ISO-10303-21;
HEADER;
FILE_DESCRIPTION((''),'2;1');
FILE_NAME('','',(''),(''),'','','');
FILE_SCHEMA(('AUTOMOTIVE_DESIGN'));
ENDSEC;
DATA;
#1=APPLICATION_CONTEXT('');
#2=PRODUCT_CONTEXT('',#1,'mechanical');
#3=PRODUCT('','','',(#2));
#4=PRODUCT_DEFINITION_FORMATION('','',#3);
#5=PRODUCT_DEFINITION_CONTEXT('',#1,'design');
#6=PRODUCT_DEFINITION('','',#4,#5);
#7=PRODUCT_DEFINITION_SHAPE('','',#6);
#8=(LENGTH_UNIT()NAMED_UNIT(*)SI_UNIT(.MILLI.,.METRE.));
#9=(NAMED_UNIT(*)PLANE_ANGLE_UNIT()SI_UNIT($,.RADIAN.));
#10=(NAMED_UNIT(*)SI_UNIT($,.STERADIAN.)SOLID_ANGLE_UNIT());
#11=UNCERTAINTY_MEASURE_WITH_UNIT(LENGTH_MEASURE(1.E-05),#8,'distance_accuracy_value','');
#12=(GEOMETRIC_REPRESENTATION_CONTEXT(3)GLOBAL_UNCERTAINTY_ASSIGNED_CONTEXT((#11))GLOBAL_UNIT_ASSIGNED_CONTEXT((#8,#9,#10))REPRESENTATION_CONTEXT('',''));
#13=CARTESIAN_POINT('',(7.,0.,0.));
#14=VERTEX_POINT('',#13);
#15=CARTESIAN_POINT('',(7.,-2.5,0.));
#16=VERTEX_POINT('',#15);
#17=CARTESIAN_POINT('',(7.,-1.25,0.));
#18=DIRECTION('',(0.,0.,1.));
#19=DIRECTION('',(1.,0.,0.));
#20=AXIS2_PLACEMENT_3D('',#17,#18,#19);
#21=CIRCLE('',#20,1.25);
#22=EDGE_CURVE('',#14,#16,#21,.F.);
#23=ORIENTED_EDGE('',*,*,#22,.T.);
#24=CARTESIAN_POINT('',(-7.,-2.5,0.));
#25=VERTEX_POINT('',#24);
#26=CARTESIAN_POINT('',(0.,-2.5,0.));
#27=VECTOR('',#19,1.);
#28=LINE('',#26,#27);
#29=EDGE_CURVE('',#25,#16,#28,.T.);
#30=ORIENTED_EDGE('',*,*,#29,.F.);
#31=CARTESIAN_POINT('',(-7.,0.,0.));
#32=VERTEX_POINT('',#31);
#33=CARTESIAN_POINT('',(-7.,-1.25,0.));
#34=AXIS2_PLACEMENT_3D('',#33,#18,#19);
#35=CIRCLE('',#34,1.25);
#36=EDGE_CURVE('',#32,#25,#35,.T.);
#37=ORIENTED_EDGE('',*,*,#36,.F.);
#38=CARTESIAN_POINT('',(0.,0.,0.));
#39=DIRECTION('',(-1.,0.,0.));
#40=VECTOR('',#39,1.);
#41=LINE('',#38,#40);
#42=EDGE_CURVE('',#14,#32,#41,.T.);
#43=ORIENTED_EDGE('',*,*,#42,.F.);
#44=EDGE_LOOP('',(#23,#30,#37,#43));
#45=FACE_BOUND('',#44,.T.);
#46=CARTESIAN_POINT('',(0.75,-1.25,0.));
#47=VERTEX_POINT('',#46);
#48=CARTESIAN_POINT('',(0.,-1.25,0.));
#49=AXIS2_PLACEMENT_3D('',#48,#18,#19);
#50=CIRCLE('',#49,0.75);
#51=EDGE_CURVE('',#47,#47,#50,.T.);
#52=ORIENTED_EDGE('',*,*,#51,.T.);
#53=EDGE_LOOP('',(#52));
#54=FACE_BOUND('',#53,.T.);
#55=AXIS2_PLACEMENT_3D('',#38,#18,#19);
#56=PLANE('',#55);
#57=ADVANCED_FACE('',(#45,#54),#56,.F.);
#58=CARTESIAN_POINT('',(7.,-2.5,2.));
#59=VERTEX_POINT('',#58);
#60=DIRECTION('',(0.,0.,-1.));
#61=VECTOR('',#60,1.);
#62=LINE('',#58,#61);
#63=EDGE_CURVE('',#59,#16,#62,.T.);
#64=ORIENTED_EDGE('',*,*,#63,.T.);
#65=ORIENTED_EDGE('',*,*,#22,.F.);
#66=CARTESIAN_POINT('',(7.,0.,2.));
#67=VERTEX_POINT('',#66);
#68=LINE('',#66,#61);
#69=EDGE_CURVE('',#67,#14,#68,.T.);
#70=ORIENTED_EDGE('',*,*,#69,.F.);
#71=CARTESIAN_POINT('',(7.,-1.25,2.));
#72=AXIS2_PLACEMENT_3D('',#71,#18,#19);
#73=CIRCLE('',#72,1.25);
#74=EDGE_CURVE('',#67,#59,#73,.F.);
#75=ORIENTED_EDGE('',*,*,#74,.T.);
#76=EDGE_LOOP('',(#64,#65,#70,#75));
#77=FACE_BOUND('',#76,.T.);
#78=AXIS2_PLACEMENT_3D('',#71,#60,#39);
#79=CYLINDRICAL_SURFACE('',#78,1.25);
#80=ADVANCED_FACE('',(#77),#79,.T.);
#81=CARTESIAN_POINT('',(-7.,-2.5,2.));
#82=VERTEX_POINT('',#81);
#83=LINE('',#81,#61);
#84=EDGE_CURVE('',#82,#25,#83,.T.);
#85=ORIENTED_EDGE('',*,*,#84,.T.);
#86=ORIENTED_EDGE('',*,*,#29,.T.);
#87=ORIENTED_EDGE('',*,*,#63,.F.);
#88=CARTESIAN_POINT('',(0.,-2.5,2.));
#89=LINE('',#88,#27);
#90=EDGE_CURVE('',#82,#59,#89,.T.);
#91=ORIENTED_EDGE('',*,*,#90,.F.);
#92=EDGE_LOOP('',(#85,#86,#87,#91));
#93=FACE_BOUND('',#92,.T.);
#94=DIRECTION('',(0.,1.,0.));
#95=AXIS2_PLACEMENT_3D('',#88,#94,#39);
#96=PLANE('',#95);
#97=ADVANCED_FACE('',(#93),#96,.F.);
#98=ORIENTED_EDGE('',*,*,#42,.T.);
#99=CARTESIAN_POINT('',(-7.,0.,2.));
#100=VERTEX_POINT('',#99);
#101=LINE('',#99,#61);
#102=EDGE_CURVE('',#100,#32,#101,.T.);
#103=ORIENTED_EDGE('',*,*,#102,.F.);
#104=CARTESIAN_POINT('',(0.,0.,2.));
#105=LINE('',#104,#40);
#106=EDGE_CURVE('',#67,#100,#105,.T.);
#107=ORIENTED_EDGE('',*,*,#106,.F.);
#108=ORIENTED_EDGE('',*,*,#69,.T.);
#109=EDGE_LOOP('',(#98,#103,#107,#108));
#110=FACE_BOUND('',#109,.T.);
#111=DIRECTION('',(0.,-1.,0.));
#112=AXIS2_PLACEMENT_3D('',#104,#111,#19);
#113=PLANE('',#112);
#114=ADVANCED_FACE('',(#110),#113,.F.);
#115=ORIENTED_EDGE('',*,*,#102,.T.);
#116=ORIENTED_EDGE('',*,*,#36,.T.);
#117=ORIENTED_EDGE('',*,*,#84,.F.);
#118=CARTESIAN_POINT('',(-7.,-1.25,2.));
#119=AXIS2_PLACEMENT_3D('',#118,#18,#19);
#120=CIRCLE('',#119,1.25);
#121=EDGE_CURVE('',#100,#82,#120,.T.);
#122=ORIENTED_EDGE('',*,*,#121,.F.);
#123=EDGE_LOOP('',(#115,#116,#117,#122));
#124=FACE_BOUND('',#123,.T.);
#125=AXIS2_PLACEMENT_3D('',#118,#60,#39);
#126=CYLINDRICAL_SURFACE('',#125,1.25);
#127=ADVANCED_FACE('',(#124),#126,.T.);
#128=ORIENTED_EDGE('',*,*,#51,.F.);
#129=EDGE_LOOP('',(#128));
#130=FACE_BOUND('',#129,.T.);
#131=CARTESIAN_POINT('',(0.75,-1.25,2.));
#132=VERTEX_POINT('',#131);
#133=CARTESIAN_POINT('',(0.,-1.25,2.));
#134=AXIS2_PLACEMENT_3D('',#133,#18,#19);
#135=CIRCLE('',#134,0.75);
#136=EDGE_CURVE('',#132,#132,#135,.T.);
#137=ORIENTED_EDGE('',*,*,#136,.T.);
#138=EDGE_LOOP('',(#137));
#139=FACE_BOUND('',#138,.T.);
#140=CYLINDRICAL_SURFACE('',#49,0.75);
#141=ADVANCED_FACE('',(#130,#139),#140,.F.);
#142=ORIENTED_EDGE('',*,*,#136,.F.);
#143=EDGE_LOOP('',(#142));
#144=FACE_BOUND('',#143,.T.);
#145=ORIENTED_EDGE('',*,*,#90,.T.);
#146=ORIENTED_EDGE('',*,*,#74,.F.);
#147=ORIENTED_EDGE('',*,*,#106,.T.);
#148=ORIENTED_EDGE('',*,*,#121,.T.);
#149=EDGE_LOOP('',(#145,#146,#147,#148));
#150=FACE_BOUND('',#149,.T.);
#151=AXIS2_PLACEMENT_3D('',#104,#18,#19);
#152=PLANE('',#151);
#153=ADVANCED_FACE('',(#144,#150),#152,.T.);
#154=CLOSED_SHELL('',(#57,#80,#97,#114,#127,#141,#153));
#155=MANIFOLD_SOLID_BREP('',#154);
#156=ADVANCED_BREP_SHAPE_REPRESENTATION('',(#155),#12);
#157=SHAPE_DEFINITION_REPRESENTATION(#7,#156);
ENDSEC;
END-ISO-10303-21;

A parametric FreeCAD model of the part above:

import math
import FreeCAD as App
import Part
import Sketcher

doc = App.newDocument("Part")
body = doc.addObject("PartDesign::Body", "Body")

sketch1 = doc.addObject("Sketcher::SketchObject", "Sketch")
body.addObject(sketch1)
sketch1.AttachmentSupport = (doc.XY_Plane, [""])
sketch1.MapMode = "FlatFace"
sketch1.addGeometry([
    Part.ArcOfCircle(Part.Circle(App.Vector(-7, -1.2, 0), App.Vector(0, 0, 1), 1.2), math.radians(90), math.radians(270)),
    Part.LineSegment(App.Vector(-7, -2.5, 0), App.Vector(7, -2.5, 0)),
    Part.ArcOfCircle(Part.Circle(App.Vector(7, -1.2, 0), App.Vector(0, 0, 1), 1.2), math.radians(-90), math.radians(90)),
    Part.LineSegment(App.Vector(7, 0, 0), App.Vector(-7, 0, 0)),
], False)
sketch1.addConstraint([
    Sketcher.Constraint("Tangent", 0, 2, 1, 1),
    Sketcher.Constraint("Tangent", 1, 2, 2, 1),
    Sketcher.Constraint("Tangent", 2, 2, 3, 1),
    Sketcher.Constraint("Tangent", 3, 2, 0, 1),
    Sketcher.Constraint("Horizontal", 1),
    Sketcher.Constraint("Horizontal", 3),
    Sketcher.Constraint("Symmetric", 2, 2, 3, 2, -1, 1),
    Sketcher.Constraint("DistanceX", 1, 1, 1, 2, 14.0),
    Sketcher.Constraint("Radius", 0, 1.25),
])
pad1 = doc.addObject("PartDesign::Pad", "Pad")
body.addObject(pad1)
pad1.Profile = sketch1
pad1.Length = 2

sketch2 = doc.addObject("Sketcher::SketchObject", "Sketch001")
body.addObject(sketch2)
sketch2.AttachmentSupport = (doc.XY_Plane, [""])
sketch2.MapMode = "FlatFace"
sketch2.AttachmentOffset = App.Placement(App.Vector(0, 0, 2), App.Rotation())
sketch2.addGeometry(Part.Circle(App.Vector(0, -1.2, 0), App.Vector(0, 0, 1), 0.8), False)
sketch2.addConstraint([
    Sketcher.Constraint("PointOnObject", 0, 3, -2),
    Sketcher.Constraint("Diameter", 0, 1.5),
    Sketcher.Constraint("DistanceY", 0, 3, -1, 1, 1.25),
])
pocket1 = doc.addObject("PartDesign::Pocket", "Pocket")
body.addObject(pocket1)
pocket1.Profile = sketch2
pocket1.Length = 2

doc.recompute()
